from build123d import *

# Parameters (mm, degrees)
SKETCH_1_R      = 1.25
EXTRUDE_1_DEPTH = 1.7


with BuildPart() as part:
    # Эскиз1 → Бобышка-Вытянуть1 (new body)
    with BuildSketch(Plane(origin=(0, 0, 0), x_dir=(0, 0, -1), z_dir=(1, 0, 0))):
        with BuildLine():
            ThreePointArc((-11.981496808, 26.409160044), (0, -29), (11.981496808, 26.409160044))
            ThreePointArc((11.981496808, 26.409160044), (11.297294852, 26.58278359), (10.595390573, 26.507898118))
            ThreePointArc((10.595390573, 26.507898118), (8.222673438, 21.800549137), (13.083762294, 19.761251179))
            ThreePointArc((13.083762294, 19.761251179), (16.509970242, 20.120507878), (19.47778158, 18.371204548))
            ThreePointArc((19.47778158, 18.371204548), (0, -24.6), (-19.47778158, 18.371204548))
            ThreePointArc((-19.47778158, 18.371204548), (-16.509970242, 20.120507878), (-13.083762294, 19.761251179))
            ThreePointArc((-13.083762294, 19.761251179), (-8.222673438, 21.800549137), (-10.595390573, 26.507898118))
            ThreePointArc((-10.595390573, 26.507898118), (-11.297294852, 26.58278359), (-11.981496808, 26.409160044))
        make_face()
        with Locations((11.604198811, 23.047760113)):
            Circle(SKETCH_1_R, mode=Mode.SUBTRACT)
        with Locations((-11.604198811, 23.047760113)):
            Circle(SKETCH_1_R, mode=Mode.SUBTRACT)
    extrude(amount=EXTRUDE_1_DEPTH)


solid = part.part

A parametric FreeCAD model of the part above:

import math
import FreeCAD as App
import Part
import Sketcher

V = App.Vector
Q = App.Units.Quantity

doc = App.newDocument("Part")
params = doc.addObject("Spreadsheet::Sheet", "Params")
for row, (alias, value) in enumerate([
    ("sketch1_radius", "29 mm"),
    ("sketch1_radius2", "2 mm"),
    ("sketch1_diameter", "2.5 mm"),
    ("sketch1_radius3", "5.5 mm"),
    ("sketch1_radius4", "25.9 mm"),
    ("pad1_length", "1.7 mm"),
], start=1):
    params.set(f"A{row}", alias)
    params.set(f"B{row}", "=" + value)
    params.setAlias(f"B{row}", alias)

body = doc.addObject("PartDesign::Body", "Body")

# Sketch on YZ plane
sketch1 = doc.addObject("Sketcher::SketchObject", "Sketch")
body.addObject(sketch1)
sketch1.AttachmentSupport = (doc.YZ_Plane, [""])
sketch1.MapMode = "FlatFace"
sketch1.addGeometry(Part.ArcOfCircle(Part.Circle(V(0, 0, 0), V(0, 0, 1), 29), math.radians(24), math.radians(336)), False)
sketch1.addGeometry(Part.ArcOfCircle(Part.Circle(V(24.6, -11.2, 0), V(0, 0, 1), 2), math.radians(-24), math.radians(16)), False)
sketch1.addGeometry(Part.ArcOfCircle(Part.Circle(V(23, -11.6, 0), V(0, 0, 1), 3.6), math.radians(16), math.radians(204)), False)
sketch1.addGeometry(Part.ArcOfCircle(Part.Circle(V(14.7, -15.3, 0), V(0, 0, 1), 5.5), math.radians(-49), math.radians(24)), False)
sketch1.addGeometry(Part.ArcOfCircle(Part.Circle(V(1.3, 0, 0), V(0, 0, 1), 25.9), math.radians(49), math.radians(311)), False)
sketch1.addGeometry(Part.ArcOfCircle(Part.Circle(V(14.7, 15.3, 0), V(0, 0, 1), 5.5), math.radians(-24), math.radians(49)), False)
sketch1.addGeometry(Part.ArcOfCircle(Part.Circle(V(23, 11.6, 0), V(0, 0, 1), 3.6), math.radians(156), math.radians(344)), False)
sketch1.addGeometry(Part.ArcOfCircle(Part.Circle(V(24.6, 11.2, 0), V(0, 0, 1), 2), math.radians(-16), math.radians(24)), False)
sketch1.addGeometry(Part.Circle(V(23, 11.6, 0), V(0, 0, 1), 1.2), False)
sketch1.addGeometry(Part.Circle(V(23, -11.6, 0), V(0, 0, 1), 1.2), False)
sketch1.addConstraint(Sketcher.Constraint("Tangent", 0, 2, 1, 1))
sketch1.addConstraint(Sketcher.Constraint("Tangent", 1, 2, 2, 1))
sketch1.addConstraint(Sketcher.Constraint("Tangent", 2, 2, 3, 2))
sketch1.addConstraint(Sketcher.Constraint("Tangent", 3, 1, 4, 2))
sketch1.addConstraint(Sketcher.Constraint("Tangent", 4, 1, 5, 2))
sketch1.addConstraint(Sketcher.Constraint("Tangent", 5, 1, 6, 1))
sketch1.addConstraint(Sketcher.Constraint("Tangent", 6, 2, 7, 1))
sketch1.addConstraint(Sketcher.Constraint("Tangent", 7, 2, 0, 1))
sketch1.addConstraint(Sketcher.Constraint("Coincident", 0, 3, -1, 1))
sketch1.addConstraint(Sketcher.Constraint("Coincident", 8, 3, 6, 3))
sketch1.addConstraint(Sketcher.Constraint("Coincident", 9, 3, 2, 3))
sketch1.addConstraint(Sketcher.Constraint("Equal", 3, 5))
sketch1.addConstraint(Sketcher.Constraint("Equal", 2, 6))
sketch1.addConstraint(Sketcher.Constraint("Equal", 1, 7))
sketch1.addConstraint(Sketcher.Constraint("Equal", 8, 9))
sketch1.addConstraint(Sketcher.Constraint("Symmetric", 3, 3, 5, 3, -1))
sketch1.addConstraint(Sketcher.Constraint("Vertical", 2, 3, 6, 3))
sketch1.addConstraint(Sketcher.Constraint("Radius", 0, Q("29 mm")))
sketch1.addConstraint(Sketcher.Constraint("Radius", 1, Q("2 mm")))
sketch1.addConstraint(Sketcher.Constraint("Diameter", 8, Q("2.5 mm")))
sketch1.addConstraint(Sketcher.Constraint("Radius", 3, Q("5.5 mm")))
sketch1.addConstraint(Sketcher.Constraint("Radius", 4, Q("25.9 mm")))
sketch1.addConstraint(Sketcher.Constraint("DistanceX", -1, 1, 4, 3, Q("1.3 mm")))
sketch1.addConstraint(Sketcher.Constraint("Radius", 2, Q("3.604199 mm")))
sketch1.addConstraint(Sketcher.Constraint("DistanceY", 2, 3, -1, 1, Q("11.604199 mm")))
sketch1.addConstraint(Sketcher.Constraint("DistanceX", -1, 1, 1, 2, Q("26.507898 mm")))
sketch1.setExpression("Constraints[17]", "Params.sketch1_radius")
sketch1.setExpression("Constraints[18]", "Params.sketch1_radius2")
sketch1.setExpression("Constraints[19]", "Params.sketch1_diameter")
sketch1.setExpression("Constraints[20]", "Params.sketch1_radius3")
sketch1.setExpression("Constraints[21]", "Params.sketch1_radius4")
pad1 = doc.addObject("PartDesign::Pad", "Pad")
body.addObject(pad1)
pad1.Profile = sketch1
pad1.setExpression("Length", "Params.pad1_length")

doc.recompute()
